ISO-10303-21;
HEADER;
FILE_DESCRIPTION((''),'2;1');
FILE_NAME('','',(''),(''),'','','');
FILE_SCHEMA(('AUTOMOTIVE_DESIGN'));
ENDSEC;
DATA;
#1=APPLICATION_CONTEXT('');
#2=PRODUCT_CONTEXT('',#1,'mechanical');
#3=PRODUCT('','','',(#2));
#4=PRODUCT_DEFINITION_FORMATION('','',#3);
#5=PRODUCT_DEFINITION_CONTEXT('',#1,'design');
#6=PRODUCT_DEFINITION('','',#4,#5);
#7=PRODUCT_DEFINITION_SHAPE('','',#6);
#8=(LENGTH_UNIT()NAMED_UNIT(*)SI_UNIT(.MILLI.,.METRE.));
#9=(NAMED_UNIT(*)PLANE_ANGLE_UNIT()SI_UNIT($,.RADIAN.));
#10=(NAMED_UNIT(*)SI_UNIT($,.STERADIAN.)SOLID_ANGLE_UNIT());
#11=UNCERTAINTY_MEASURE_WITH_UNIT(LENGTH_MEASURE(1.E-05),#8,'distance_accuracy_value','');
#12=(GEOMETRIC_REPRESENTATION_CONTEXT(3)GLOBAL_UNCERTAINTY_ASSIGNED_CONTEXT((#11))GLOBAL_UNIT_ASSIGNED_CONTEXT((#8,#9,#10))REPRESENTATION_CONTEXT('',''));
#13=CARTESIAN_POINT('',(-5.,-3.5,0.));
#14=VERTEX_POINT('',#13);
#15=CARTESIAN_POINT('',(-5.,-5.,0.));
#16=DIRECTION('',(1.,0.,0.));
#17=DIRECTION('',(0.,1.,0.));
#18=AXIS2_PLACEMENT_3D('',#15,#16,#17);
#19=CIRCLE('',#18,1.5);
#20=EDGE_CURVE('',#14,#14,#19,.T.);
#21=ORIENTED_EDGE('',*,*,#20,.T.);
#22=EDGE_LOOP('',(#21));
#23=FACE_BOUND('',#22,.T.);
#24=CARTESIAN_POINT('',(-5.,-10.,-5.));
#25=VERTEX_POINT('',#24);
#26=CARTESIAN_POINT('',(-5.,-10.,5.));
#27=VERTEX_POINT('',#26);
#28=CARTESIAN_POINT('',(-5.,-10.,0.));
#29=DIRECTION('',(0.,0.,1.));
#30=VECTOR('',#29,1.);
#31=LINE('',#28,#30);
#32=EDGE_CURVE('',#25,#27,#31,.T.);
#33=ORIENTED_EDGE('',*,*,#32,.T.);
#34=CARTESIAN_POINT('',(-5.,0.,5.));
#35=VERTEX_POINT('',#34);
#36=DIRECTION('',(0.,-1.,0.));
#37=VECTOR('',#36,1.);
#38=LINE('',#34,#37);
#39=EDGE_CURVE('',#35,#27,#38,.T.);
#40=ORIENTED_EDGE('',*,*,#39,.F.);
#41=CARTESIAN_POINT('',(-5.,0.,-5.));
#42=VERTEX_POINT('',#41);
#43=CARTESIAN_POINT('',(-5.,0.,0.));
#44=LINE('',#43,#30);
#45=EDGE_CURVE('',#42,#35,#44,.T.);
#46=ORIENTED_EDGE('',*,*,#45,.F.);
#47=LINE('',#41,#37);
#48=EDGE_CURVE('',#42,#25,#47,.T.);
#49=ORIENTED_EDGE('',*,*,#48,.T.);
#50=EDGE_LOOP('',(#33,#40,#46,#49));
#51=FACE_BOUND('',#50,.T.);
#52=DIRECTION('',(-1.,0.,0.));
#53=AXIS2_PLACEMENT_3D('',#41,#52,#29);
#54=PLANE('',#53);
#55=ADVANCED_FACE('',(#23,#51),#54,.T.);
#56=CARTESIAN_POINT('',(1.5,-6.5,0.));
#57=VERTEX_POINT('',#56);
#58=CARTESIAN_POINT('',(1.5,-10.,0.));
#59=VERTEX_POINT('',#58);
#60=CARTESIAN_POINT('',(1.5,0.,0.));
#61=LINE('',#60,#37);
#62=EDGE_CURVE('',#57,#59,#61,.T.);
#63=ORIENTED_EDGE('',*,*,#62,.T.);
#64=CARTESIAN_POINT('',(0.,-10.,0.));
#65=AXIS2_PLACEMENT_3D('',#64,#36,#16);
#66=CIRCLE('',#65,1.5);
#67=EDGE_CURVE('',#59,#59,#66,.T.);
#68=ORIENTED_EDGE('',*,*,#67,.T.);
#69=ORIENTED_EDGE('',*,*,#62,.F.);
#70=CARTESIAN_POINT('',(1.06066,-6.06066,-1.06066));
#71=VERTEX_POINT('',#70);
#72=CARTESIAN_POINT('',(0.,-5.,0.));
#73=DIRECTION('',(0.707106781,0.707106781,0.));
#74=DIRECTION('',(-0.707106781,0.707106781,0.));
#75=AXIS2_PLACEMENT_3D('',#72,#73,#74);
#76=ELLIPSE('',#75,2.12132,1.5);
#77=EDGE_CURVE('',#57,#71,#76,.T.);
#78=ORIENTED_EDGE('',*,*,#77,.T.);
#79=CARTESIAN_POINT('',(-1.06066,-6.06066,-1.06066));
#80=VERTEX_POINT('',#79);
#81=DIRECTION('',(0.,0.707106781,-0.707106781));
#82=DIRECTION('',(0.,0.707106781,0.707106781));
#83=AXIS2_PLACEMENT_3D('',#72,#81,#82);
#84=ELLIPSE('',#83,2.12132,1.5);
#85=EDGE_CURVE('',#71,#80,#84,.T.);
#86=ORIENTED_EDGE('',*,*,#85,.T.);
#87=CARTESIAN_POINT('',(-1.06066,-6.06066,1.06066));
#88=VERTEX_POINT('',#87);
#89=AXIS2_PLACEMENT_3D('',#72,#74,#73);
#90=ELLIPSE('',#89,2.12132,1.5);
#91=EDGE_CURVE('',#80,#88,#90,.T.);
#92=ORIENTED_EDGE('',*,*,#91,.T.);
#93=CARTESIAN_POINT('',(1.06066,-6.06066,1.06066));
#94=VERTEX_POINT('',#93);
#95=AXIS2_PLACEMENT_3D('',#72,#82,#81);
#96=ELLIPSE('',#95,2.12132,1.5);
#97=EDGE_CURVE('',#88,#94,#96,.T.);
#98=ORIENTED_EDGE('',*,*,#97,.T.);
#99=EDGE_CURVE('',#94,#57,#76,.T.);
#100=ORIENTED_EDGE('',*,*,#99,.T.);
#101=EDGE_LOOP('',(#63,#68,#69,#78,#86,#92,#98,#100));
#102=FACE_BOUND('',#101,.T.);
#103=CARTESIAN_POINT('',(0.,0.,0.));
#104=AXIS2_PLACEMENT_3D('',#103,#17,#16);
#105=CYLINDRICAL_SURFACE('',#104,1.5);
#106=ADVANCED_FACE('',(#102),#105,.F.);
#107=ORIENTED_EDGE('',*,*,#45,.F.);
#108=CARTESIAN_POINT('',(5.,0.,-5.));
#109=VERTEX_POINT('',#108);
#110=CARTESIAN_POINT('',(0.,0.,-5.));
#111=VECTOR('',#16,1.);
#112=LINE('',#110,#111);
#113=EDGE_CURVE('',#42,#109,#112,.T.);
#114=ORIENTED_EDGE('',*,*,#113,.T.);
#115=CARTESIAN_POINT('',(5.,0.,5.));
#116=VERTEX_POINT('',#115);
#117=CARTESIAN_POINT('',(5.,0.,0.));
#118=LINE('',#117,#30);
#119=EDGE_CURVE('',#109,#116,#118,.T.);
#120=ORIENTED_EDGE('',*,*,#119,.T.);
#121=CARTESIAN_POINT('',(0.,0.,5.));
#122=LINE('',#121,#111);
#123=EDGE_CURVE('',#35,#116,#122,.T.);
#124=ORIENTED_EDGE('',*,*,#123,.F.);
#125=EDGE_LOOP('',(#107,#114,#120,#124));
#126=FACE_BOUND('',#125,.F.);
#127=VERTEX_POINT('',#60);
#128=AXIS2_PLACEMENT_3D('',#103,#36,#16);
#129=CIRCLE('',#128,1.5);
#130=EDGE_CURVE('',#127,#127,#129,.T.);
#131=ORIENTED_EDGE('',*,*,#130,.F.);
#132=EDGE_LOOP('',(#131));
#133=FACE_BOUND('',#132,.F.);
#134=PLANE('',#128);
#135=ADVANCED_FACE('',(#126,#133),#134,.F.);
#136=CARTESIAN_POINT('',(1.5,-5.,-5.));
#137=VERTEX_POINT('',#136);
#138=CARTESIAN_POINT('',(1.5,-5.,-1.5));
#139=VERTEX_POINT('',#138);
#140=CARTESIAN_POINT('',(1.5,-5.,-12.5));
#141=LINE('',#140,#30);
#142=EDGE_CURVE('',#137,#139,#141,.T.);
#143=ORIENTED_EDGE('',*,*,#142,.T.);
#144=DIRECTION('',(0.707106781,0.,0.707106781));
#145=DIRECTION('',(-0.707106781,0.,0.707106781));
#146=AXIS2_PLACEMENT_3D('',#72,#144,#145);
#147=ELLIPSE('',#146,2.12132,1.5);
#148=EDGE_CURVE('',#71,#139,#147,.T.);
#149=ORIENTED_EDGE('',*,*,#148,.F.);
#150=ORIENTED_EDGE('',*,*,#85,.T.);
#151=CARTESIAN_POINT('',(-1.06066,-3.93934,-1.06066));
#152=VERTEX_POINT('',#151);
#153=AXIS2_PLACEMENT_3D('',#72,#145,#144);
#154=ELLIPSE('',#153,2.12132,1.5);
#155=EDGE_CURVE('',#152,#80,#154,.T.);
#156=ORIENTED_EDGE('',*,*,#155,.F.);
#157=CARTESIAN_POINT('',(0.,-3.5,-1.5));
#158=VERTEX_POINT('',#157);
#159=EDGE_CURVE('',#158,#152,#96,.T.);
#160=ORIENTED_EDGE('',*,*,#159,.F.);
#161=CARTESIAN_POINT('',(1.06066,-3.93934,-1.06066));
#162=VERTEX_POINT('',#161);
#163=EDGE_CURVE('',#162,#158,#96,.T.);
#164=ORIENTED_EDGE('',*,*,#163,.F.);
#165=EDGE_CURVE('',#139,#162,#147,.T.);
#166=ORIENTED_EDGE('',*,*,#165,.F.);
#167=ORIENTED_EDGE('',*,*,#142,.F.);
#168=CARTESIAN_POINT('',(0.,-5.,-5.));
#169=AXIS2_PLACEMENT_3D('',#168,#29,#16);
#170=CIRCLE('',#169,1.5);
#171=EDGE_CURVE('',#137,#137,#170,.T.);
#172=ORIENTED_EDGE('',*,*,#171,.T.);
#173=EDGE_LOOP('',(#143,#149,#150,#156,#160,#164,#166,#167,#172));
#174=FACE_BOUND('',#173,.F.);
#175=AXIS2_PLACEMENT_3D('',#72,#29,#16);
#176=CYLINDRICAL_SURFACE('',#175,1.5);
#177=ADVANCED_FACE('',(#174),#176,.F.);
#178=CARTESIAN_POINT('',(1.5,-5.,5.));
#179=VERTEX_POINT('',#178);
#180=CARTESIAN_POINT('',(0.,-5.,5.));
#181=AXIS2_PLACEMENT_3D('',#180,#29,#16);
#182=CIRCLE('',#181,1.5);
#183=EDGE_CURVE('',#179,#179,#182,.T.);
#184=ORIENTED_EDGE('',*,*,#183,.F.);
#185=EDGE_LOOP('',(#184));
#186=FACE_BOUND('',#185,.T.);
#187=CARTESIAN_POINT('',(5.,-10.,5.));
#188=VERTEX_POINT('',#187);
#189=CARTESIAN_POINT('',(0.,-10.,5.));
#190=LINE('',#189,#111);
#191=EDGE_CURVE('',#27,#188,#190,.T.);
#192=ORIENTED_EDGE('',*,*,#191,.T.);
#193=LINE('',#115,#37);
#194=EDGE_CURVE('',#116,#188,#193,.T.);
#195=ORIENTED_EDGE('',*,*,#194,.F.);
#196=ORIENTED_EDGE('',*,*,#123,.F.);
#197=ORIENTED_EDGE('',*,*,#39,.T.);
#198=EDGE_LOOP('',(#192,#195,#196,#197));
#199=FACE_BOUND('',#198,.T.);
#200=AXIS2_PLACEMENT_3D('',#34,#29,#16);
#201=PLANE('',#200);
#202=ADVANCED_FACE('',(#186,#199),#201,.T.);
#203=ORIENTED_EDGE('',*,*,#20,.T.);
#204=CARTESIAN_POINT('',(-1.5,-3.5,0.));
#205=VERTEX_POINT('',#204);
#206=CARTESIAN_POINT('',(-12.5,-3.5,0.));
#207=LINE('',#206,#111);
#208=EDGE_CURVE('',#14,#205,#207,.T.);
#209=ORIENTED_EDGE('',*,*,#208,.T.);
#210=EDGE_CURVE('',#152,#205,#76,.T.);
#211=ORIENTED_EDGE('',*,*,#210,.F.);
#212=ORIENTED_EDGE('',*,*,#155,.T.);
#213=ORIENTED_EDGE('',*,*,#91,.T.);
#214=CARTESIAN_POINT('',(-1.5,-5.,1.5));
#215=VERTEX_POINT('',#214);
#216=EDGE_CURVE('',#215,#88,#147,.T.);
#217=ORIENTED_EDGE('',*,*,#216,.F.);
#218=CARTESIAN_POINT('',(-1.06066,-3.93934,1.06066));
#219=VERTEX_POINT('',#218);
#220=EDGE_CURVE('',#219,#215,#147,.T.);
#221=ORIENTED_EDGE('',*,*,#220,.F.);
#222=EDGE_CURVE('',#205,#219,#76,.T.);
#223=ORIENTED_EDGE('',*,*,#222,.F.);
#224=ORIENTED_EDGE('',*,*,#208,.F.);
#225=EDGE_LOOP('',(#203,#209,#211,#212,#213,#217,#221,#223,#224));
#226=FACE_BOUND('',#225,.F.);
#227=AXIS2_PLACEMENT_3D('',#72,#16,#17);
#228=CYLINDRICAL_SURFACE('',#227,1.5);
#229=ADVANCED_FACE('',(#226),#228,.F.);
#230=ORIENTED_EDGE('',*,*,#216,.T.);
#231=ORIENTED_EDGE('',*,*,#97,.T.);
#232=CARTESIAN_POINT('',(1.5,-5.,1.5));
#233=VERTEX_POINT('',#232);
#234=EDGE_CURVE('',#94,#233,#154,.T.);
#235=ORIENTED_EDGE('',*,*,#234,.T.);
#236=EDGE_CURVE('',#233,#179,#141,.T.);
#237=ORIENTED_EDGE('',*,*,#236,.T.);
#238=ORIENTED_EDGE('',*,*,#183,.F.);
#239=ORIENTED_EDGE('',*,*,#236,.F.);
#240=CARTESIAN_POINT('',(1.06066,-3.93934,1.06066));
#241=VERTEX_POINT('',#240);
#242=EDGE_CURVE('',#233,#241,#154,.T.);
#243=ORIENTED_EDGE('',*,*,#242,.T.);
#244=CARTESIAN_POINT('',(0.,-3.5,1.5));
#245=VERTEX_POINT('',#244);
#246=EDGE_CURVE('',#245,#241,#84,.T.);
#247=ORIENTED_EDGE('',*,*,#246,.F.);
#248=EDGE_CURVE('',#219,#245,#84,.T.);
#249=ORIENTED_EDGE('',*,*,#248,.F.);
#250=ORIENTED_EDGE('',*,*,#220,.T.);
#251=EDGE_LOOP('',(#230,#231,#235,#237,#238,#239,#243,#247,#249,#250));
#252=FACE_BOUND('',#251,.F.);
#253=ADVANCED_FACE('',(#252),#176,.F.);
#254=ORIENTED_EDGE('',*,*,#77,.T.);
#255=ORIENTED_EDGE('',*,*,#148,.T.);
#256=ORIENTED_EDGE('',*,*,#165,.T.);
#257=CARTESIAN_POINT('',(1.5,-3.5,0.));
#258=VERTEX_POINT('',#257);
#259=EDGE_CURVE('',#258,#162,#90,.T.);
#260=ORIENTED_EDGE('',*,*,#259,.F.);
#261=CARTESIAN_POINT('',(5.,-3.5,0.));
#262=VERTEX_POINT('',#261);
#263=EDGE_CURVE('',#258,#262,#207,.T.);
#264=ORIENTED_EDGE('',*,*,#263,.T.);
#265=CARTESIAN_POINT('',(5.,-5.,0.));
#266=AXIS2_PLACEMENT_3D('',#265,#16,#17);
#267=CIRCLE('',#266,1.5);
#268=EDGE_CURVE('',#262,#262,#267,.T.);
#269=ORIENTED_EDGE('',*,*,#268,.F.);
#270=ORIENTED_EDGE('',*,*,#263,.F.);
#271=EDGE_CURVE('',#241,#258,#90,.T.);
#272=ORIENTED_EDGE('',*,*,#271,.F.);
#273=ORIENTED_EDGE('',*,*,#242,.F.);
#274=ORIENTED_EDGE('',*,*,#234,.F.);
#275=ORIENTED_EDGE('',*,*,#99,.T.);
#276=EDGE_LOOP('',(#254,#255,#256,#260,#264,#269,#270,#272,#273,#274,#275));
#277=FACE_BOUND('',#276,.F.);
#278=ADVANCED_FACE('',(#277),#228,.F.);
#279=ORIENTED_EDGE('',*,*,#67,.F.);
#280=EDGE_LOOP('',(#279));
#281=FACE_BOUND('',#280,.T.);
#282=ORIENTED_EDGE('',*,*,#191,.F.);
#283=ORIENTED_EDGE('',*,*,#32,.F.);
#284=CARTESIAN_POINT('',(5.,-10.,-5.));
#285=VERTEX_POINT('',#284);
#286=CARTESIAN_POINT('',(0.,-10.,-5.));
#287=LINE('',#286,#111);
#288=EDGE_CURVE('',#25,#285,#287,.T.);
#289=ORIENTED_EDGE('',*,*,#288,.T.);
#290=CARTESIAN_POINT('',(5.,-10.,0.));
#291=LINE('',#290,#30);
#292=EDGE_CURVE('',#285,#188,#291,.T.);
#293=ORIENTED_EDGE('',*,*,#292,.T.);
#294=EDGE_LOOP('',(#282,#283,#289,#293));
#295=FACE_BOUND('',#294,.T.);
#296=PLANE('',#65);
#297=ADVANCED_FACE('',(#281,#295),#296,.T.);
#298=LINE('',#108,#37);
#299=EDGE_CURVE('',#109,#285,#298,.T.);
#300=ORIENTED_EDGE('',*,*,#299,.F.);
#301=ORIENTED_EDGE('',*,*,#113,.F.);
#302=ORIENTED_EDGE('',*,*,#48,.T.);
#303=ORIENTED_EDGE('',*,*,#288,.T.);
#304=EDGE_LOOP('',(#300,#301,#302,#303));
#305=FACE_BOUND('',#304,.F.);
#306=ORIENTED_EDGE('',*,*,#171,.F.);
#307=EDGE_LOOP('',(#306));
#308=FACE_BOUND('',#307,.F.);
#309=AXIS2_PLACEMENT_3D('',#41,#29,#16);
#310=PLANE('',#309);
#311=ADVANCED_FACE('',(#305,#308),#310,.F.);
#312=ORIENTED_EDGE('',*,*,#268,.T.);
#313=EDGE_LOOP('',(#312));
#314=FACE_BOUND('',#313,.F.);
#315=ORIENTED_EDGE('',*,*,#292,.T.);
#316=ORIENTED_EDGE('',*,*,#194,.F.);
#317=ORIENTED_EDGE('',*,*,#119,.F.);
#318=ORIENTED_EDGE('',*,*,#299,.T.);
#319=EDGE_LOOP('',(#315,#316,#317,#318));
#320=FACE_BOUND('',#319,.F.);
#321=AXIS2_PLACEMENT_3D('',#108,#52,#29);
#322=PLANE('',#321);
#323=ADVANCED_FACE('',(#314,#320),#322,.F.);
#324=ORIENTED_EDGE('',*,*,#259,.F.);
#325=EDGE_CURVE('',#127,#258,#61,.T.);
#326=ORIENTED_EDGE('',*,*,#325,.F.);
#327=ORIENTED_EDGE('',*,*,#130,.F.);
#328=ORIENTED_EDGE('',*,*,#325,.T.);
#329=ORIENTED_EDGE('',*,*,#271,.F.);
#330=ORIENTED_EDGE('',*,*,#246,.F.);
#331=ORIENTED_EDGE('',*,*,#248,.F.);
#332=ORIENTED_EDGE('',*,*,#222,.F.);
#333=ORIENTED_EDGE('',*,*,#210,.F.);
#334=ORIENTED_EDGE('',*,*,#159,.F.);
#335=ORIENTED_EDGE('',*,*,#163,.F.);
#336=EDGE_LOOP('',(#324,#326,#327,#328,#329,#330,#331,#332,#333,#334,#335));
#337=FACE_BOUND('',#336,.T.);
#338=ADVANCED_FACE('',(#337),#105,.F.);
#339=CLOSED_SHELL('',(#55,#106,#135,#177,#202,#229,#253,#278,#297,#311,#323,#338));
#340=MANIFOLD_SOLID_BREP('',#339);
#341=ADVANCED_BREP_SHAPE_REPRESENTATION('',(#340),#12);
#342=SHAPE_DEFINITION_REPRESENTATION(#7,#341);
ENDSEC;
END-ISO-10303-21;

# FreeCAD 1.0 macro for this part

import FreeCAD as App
import Part
import Sketcher
from FreeCAD import Vector
Q = App.Units.Quantity


def add_polygon(sketch, points):
    """Adds a closed chain of lines whose ends are joined by coincident constraints."""
    first, n = sketch.GeometryCount, len(points)
    for a, b in zip(points, points[1:] + points[:1]):
        sketch.addGeometry(Part.LineSegment(App.Vector(*a, 0), App.Vector(*b, 0)), False)
    for i in range(n):
        sketch.addConstraint(Sketcher.Constraint("Coincident", first + i, 2, first + (i + 1) % n, 1))

doc = App.newDocument("Part")
body = doc.addObject("PartDesign::Body", "Body")

# Sketch on XZ plane
sketch1 = body.newObject("Sketcher::SketchObject", "Sketch")
sketch1.AttachmentSupport = (doc.getObject("XZ_Plane"), [""])
sketch1.MapMode = "FlatFace"
add_polygon(sketch1, [(-5, 5), (-5, -5), (5, -5), (5, 5)])  # lines 0-3
sketch1.addGeometry(Part.Circle(Vector(0, 0, 0), Vector(0, 0, 1), 1.5), False)  # 4
sketch1.addConstraint(Sketcher.Constraint("Vertical", 0))
sketch1.addConstraint(Sketcher.Constraint("Horizontal", 1))
sketch1.addConstraint(Sketcher.Constraint("Vertical", 2))
sketch1.addConstraint(Sketcher.Constraint("Horizontal", 3))
sketch1.addConstraint(Sketcher.Constraint("Coincident", 4, 3, -1, 1))
sketch1.addConstraint(Sketcher.Constraint("Symmetric", 0, 2, 2, 2, -1, 1))
sketch1.addConstraint(Sketcher.Constraint("Equal", 3, 0))
sketch1.addConstraint(Sketcher.Constraint("Diameter", 4, Q("3 mm")))
sketch1.addConstraint(Sketcher.Constraint("DistanceX", 1, 1, 1, 2, Q("10 mm")))
pad1 = body.newObject("PartDesign::Pad", "Pad")
pad1.Profile = sketch1
pad1.Length = 10

# Sketch on XY plane
sketch2 = body.newObject("Sketcher::SketchObject", "Sketch001")
sketch2.AttachmentSupport = (doc.getObject("XY_Plane"), [""])
sketch2.MapMode = "FlatFace"
sketch2.addGeometry(Part.Circle(Vector(0, -5, 0), Vector(0, 0, 1), 1.5), False)
sketch2.addConstraint(Sketcher.Constraint("PointOnObject", 0, 3, -2))
sketch2.addConstraint(Sketcher.Constraint("Diameter", 0, Q("3 mm")))
sketch2.addConstraint(Sketcher.Constraint("DistanceY", 0, 3, -1, 1, Q("5 mm")))
pocket1 = body.newObject("PartDesign::Pocket", "Pocket")
pocket1.Profile = sketch2
pocket1.Length = 25
pocket1.Midplane = True

# Sketch on YZ plane
sketch3 = body.newObject("Sketcher::SketchObject", "Sketch002")
sketch3.AttachmentSupport = (doc.getObject("YZ_Plane"), [""])
sketch3.MapMode = "FlatFace"
sketch3.addGeometry(Part.Circle(Vector(-5, 0, 0), Vector(0, 0, 1), 1.5), False)
sketch3.addConstraint(Sketcher.Constraint("PointOnObject", 0, 3, -1))
sketch3.addConstraint(Sketcher.Constraint("Diameter", 0, Q("3 mm")))
sketch3.addConstraint(Sketcher.Constraint("DistanceX", 0, 3, -1, 1, Q("5 mm")))
pocket2 = body.newObject("PartDesign::Pocket", "Pocket001")
pocket2.Profile = sketch3
pocket2.Length = 25
pocket2.Midplane = True

doc.recompute()
